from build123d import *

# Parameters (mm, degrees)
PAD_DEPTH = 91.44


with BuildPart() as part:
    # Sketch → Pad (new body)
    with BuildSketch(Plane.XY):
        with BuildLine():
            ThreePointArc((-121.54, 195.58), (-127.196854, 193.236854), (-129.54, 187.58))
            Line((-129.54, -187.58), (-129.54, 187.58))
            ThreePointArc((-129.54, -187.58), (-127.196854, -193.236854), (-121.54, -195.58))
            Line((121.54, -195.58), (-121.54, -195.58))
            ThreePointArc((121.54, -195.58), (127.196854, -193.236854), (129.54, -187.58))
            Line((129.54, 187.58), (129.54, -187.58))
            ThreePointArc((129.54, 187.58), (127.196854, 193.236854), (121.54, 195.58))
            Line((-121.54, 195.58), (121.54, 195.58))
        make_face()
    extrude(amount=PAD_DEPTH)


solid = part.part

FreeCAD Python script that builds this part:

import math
import FreeCAD as App
import Part
import Sketcher

doc = App.newDocument("Part")
body = doc.addObject("PartDesign::Body", "Body")

sketch1 = doc.addObject("Sketcher::SketchObject", "Sketch")
body.addObject(sketch1)
sketch1.AttachmentSupport = (doc.XY_Plane, [""])
sketch1.MapMode = "FlatFace"
sketch1.addGeometry(Part.ArcOfCircle(Part.Circle(App.Vector(-122, 188, 0), App.Vector(0, 0, 1), 8), math.radians(90), math.radians(180)), False)
sketch1.addGeometry(Part.LineSegment(App.Vector(-130, 188, 0), App.Vector(-130, -188, 0)), False)
sketch1.addGeometry(Part.ArcOfCircle(Part.Circle(App.Vector(-122, -188, 0), App.Vector(0, 0, 1), 8), math.radians(-180), math.radians(-90)), False)
sketch1.addGeometry(Part.LineSegment(App.Vector(-122, -196, 0), App.Vector(122, -196, 0)), False)
sketch1.addGeometry(Part.ArcOfCircle(Part.Circle(App.Vector(122, -188, 0), App.Vector(0, 0, 1), 8), math.radians(-90), math.radians(0)), False)
sketch1.addGeometry(Part.LineSegment(App.Vector(130, -188, 0), App.Vector(130, 188, 0)), False)
sketch1.addGeometry(Part.ArcOfCircle(Part.Circle(App.Vector(122, 188, 0), App.Vector(0, 0, 1), 8), math.radians(0), math.radians(90)), False)
sketch1.addGeometry(Part.LineSegment(App.Vector(122, 196, 0), App.Vector(-122, 196, 0)), False)
sketch1.addConstraint(Sketcher.Constraint("Tangent", 0, 2, 1, 1))
sketch1.addConstraint(Sketcher.Constraint("Tangent", 1, 2, 2, 1))
sketch1.addConstraint(Sketcher.Constraint("Tangent", 2, 2, 3, 1))
sketch1.addConstraint(Sketcher.Constraint("Tangent", 3, 2, 4, 1))
sketch1.addConstraint(Sketcher.Constraint("Tangent", 4, 2, 5, 1))
sketch1.addConstraint(Sketcher.Constraint("Tangent", 5, 2, 6, 1))
sketch1.addConstraint(Sketcher.Constraint("Tangent", 6, 2, 7, 1))
sketch1.addConstraint(Sketcher.Constraint("Tangent", 7, 2, 0, 1))
sketch1.addConstraint(Sketcher.Constraint("Vertical", 1))
sketch1.addConstraint(Sketcher.Constraint("Horizontal", 3))
sketch1.addConstraint(Sketcher.Constraint("Vertical", 5))
sketch1.addConstraint(Sketcher.Constraint("Horizontal", 7))
sketch1.addConstraint(Sketcher.Constraint("Equal", 0, 2))
sketch1.addConstraint(Sketcher.Constraint("Equal", 2, 4))
sketch1.addConstraint(Sketcher.Constraint("Equal", 4, 6))
sketch1.addConstraint(Sketcher.Constraint("Symmetric", 0, 3, 4, 3, -1, 1))
sketch1.addConstraint(Sketcher.Constraint("Radius", 0, 8.000001))
sketch1.addConstraint(Sketcher.Constraint("DistanceX", 3, 1, 3, 2, 243.08))
sketch1.addConstraint(Sketcher.Constraint("DistanceY", 1, 2, 1, 1, 375.16))
pad1 = doc.addObject("PartDesign::Pad", "Pad")
body.addObject(pad1)
pad1.Profile = sketch1
pad1.Length = 91.44

doc.recompute()
